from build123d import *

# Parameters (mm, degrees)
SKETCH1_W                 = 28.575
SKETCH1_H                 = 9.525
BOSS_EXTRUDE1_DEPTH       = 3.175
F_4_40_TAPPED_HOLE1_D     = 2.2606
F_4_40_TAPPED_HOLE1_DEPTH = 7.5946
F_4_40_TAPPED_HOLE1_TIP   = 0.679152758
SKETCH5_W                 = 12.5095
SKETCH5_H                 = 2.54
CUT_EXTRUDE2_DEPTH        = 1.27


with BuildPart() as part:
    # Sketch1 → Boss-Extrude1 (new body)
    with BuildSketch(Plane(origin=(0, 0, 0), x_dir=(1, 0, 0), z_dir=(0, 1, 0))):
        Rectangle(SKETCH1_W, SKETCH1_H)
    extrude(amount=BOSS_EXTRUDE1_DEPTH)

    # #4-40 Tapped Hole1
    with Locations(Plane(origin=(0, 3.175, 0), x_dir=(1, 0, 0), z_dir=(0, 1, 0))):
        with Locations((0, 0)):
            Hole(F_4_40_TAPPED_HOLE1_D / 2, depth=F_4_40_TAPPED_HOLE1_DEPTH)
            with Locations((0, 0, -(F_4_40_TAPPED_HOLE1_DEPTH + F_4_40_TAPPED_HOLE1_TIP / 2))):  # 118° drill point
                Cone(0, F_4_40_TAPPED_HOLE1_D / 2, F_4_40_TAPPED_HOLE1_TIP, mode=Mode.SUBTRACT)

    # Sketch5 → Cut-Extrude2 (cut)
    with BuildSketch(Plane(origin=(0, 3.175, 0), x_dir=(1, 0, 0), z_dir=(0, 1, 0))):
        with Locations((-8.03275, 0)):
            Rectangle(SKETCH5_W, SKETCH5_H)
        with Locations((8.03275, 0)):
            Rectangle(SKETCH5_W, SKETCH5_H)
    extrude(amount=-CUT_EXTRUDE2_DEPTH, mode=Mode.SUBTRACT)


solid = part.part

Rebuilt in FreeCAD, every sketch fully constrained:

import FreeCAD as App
import Part
import Sketcher
from FreeCAD import Vector
Q = App.Units.Quantity

doc = App.newDocument("Part")
body = doc.addObject("PartDesign::Body", "Body")

# Sketch on XZ plane
sketch1 = doc.addObject("Sketcher::SketchObject", "Sketch")
body.addObject(sketch1)
sketch1.AttachmentSupport = (doc.XZ_Plane, [""])
sketch1.MapMode = "FlatFace"
sketch1.addGeometry([
    Part.LineSegment(Vector(-14, -5, 0), Vector(-14, 5, 0)),
    Part.LineSegment(Vector(-14, 5, 0), Vector(14, 5, 0)),
    Part.LineSegment(Vector(14, 5, 0), Vector(14, -5, 0)),
    Part.LineSegment(Vector(14, -5, 0), Vector(-14, -5, 0)),
], False)
sketch1.addConstraint([
    Sketcher.Constraint("Coincident", 0, 2, 1, 1),
    Sketcher.Constraint("Coincident", 1, 2, 2, 1),
    Sketcher.Constraint("Coincident", 2, 2, 3, 1),
    Sketcher.Constraint("Coincident", 3, 2, 0, 1),
    Sketcher.Constraint("Vertical", 0),
    Sketcher.Constraint("Horizontal", 1),
    Sketcher.Constraint("Vertical", 2),
    Sketcher.Constraint("Horizontal", 3),
    Sketcher.Constraint("Symmetric", 0, 2, 2, 2, -1, 1),
    Sketcher.Constraint("DistanceX", 1, 1, 1, 2, Q("1.125 in")),
    Sketcher.Constraint("DistanceY", 0, 1, 0, 2, Q("0.375 in")),
])
pad1 = doc.addObject("PartDesign::Pad", "Pad")
body.addObject(pad1)
pad1.Profile = sketch1
pad1.Length = Q("0.125 in")
pad1.Reversed = True

# Sketch on XZ plane
sketch2 = doc.addObject("Sketcher::SketchObject", "Sketch001")
body.addObject(sketch2)
sketch2.AttachmentSupport = (doc.XZ_Plane, [""])
sketch2.MapMode = "FlatFace"
sketch2.AttachmentOffset = App.Placement(Vector(0, 0, -0.125 * 25.4), App.Rotation())
sketch2.addGeometry(Part.Circle(Vector(0, 0, 0), Vector(0, 0, 1), 1.1), False)
sketch2.addConstraint([
    Sketcher.Constraint("Coincident", 0, 3, -1, 1),
    Sketcher.Constraint("Diameter", 0, Q("0.089 in")),
])
doc.recompute()
hole = doc.addObject("PartDesign::Hole", "Hole")
body.addObject(hole)
hole.Profile = sketch2
hole.ThreadType = "None"
hole.Diameter = Q("0.089 in")
hole.DepthType = "Dimension"
hole.Depth = Q("0.299 in")
hole.DrillPoint = "Angled"
hole.DrillPointAngle = 118
hole.Reversed = True

# Sketch on XZ plane
sketch3 = doc.addObject("Sketcher::SketchObject", "Sketch002")
body.addObject(sketch3)
sketch3.AttachmentSupport = (doc.XZ_Plane, [""])
sketch3.MapMode = "FlatFace"
sketch3.AttachmentOffset = App.Placement(Vector(0, 0, -0.125 * 25.4), App.Rotation())
sketch3.addGeometry([
    Part.LineSegment(Vector(-14.3, -1.3, 0), Vector(-14.3, 1.3, 0)),  # 0
    Part.LineSegment(Vector(-14.3, 1.3, 0), Vector(-1.8, 1.3, 0)),  # 1
    Part.LineSegment(Vector(-1.8, 1.3, 0), Vector(-1.8, -1.3, 0)),  # 2
    Part.LineSegment(Vector(-1.8, -1.3, 0), Vector(-14.3, -1.3, 0)),  # 3
    Part.LineSegment(Vector(1.8, -1.3, 0), Vector(1.8, 1.3, 0)),  # 4
    Part.LineSegment(Vector(1.8, 1.3, 0), Vector(14.3, 1.3, 0)),  # 5
    Part.LineSegment(Vector(14.3, 1.3, 0), Vector(14.3, -1.3, 0)),  # 6
    Part.LineSegment(Vector(14.3, -1.3, 0), Vector(1.8, -1.3, 0)),  # 7
], False)
sketch3.addConstraint([
    Sketcher.Constraint("Coincident", 0, 2, 1, 1),
    Sketcher.Constraint("Coincident", 1, 2, 2, 1),
    Sketcher.Constraint("Coincident", 2, 2, 3, 1),
    Sketcher.Constraint("Coincident", 3, 2, 0, 1),
    Sketcher.Constraint("Coincident", 4, 2, 5, 1),
    Sketcher.Constraint("Coincident", 5, 2, 6, 1),
    Sketcher.Constraint("Coincident", 6, 2, 7, 1),
    Sketcher.Constraint("Coincident", 7, 2, 4, 1),
    Sketcher.Constraint("Vertical", 0),
    Sketcher.Constraint("Horizontal", 1),
    Sketcher.Constraint("Vertical", 2),
    Sketcher.Constraint("Horizontal", 3),
    Sketcher.Constraint("Vertical", 4),
    Sketcher.Constraint("Horizontal", 5),
    Sketcher.Constraint("Vertical", 6),
    Sketcher.Constraint("Horizontal", 7),
    Sketcher.Constraint("Symmetric", 2, 2, 4, 2, -1, 1),
    Sketcher.Constraint("Symmetric", 0, 2, 6, 2, -1, 1),
    Sketcher.Constraint("Horizontal", 1, 2, 4, 2),
    Sketcher.Constraint("DistanceY", 0, 1, 0, 2, Q("0.1 in")),
    Sketcher.Constraint("DistanceX", 1, 2, -1, 1, Q("0.07 in")),
    Sketcher.Constraint("DistanceX", 1, 1, 1, 2, Q("0.4925 in")),
])
pocket1 = doc.addObject("PartDesign::Pocket", "Pocket")
body.addObject(pocket1)
pocket1.Profile = sketch3
pocket1.Length = Q("0.05 in")
pocket1.Reversed = True

doc.recompute()
